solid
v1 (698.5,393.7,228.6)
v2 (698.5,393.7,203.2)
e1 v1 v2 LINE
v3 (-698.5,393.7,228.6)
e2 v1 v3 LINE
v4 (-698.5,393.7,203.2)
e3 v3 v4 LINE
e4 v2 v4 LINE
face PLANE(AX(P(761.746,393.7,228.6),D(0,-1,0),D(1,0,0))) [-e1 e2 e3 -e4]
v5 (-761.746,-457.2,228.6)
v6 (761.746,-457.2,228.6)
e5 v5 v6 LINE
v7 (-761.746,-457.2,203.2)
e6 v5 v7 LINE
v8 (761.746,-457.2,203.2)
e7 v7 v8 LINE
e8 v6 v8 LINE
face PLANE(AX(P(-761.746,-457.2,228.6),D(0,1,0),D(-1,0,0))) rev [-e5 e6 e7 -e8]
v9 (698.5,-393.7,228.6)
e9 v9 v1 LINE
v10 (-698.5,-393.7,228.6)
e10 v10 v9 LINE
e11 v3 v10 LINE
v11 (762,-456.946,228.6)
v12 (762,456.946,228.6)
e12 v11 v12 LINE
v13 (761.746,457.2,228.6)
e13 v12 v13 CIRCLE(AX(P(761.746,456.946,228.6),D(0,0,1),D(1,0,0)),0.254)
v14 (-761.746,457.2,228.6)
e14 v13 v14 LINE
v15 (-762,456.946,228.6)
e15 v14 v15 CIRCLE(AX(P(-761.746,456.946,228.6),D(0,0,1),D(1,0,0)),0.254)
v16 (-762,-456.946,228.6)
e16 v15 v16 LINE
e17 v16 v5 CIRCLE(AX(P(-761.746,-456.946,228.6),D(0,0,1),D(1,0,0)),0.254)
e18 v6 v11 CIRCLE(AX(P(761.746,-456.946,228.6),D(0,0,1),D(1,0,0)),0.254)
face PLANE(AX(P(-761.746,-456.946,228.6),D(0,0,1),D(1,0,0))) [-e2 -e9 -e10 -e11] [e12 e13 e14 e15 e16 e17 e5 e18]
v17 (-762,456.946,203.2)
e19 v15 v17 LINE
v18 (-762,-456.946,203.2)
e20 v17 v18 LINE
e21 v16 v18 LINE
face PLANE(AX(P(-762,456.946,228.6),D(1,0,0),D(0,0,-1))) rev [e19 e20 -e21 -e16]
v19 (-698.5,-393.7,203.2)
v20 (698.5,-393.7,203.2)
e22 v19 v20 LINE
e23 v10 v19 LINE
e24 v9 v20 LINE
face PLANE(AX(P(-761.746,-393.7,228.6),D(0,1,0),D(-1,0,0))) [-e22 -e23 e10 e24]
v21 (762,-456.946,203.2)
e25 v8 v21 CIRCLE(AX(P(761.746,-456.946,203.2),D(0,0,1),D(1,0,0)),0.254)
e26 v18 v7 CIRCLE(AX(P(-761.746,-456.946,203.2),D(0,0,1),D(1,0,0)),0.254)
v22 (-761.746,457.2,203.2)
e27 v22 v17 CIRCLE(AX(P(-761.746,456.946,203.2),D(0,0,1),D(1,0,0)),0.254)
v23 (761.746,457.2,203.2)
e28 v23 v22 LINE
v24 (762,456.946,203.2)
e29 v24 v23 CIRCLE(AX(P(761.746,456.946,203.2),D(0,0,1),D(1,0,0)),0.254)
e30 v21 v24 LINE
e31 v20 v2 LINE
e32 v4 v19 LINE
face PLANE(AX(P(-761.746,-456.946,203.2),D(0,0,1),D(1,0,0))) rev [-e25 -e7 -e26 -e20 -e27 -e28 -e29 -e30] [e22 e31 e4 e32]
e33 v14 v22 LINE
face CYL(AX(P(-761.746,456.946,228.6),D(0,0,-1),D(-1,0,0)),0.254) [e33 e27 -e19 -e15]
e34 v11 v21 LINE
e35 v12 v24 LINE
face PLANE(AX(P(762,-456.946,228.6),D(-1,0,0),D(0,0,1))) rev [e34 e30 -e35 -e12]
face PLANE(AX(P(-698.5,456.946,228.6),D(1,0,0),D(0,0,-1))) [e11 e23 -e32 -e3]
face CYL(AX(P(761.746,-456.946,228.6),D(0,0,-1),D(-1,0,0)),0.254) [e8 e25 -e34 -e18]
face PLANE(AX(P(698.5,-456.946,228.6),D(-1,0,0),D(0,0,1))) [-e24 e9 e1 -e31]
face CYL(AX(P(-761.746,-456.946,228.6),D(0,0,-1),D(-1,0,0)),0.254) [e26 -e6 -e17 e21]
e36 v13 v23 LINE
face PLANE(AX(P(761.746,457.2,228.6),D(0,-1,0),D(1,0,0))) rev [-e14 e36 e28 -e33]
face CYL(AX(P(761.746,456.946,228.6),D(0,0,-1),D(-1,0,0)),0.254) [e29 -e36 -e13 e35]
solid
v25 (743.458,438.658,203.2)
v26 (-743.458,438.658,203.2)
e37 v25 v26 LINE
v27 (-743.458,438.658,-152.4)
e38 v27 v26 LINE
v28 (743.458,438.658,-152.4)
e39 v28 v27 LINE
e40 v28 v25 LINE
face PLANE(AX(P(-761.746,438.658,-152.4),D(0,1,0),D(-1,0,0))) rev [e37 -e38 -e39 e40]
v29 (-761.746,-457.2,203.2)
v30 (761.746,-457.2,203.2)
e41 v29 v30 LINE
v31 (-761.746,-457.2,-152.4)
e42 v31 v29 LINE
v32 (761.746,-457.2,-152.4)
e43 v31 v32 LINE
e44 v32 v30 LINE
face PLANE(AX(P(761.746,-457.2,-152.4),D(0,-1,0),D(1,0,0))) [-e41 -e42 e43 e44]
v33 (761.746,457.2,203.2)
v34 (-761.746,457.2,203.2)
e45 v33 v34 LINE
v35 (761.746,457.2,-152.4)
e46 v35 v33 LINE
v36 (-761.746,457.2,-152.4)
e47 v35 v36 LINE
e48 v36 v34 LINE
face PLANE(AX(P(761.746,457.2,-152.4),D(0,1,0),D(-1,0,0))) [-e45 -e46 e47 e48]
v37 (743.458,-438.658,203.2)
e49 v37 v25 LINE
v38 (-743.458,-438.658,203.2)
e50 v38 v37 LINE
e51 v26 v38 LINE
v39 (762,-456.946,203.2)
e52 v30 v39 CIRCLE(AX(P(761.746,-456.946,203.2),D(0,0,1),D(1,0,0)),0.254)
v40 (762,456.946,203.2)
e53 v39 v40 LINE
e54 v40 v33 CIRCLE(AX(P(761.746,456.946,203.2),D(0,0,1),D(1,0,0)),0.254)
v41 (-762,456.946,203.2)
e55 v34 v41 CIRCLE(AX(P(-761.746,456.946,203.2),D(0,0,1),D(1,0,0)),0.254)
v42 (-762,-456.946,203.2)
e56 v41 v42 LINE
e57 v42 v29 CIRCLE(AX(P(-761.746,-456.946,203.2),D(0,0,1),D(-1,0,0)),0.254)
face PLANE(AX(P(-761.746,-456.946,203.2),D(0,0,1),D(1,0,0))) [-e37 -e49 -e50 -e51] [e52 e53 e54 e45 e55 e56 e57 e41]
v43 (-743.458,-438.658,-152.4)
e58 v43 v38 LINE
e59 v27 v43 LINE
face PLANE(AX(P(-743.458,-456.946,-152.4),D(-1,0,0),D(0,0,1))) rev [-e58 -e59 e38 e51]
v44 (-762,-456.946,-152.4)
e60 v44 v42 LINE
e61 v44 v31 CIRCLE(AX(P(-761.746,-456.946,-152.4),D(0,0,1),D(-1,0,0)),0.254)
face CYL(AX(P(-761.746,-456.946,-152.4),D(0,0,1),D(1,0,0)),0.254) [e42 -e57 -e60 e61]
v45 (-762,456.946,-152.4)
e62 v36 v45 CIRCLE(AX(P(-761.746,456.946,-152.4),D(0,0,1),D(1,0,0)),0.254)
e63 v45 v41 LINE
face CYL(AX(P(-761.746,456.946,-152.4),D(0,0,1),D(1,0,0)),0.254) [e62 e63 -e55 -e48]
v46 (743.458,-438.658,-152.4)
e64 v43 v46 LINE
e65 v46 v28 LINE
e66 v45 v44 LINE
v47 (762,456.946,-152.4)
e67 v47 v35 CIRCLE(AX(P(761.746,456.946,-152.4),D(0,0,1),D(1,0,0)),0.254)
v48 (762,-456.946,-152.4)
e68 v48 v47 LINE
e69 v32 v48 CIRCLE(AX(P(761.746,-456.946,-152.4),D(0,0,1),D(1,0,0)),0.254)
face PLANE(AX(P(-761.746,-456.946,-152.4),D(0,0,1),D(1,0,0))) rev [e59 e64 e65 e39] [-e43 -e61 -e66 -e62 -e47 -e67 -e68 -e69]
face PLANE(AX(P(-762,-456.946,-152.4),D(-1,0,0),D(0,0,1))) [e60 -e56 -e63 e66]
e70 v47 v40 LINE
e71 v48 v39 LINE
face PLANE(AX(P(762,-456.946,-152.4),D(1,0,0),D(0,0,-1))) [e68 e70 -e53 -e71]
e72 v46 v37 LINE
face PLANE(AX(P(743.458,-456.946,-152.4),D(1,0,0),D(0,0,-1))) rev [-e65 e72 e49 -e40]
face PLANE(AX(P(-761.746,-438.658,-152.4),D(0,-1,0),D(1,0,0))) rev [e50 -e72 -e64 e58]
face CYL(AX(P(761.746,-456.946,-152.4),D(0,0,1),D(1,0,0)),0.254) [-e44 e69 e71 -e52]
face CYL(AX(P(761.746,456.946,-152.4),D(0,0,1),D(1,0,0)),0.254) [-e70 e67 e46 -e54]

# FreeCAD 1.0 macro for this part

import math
import FreeCAD as App
import Part
import Sketcher
from FreeCAD import Vector
Q = App.Units.Quantity


def add_polygon(sketch, points):
    """Adds a closed chain of lines whose ends are joined by coincident constraints."""
    first, n = sketch.GeometryCount, len(points)
    for a, b in zip(points, points[1:] + points[:1]):
        sketch.addGeometry(Part.LineSegment(App.Vector(*a, 0), App.Vector(*b, 0)), False)
    for i in range(n):
        sketch.addConstraint(Sketcher.Constraint("Coincident", first + i, 2, first + (i + 1) % n, 1))

doc = App.newDocument("Part")
body = doc.addObject("PartDesign::Body", "Body")

# Sketch on XY plane
sketch1 = body.newObject("Sketcher::SketchObject", "Sketch")
sketch1.AttachmentSupport = (doc.getObject("XY_Plane"), [""])
sketch1.MapMode = "FlatFace"
sketch1.addGeometry(Part.LineSegment(Vector(761.746, 457.2, 0), Vector(-761.746, 457.2, 0)), False)  # 0
sketch1.addGeometry(Part.ArcOfCircle(Part.Circle(Vector(-761.746, 456.946, 0), Vector(0, 0, 1), 0.254), math.radians(90), math.radians(180)), False)  # 1
sketch1.addGeometry(Part.LineSegment(Vector(-762, 456.946, 0), Vector(-762, -456.946, 0)), False)  # 2
sketch1.addGeometry(Part.ArcOfCircle(Part.Circle(Vector(-761.746, -456.946, 0), Vector(0, 0, 1), 0.254), math.radians(180), math.radians(270)), False)  # 3
sketch1.addGeometry(Part.LineSegment(Vector(-761.746, -457.2, 0), Vector(761.746, -457.2, 0)), False)  # 4
sketch1.addGeometry(Part.ArcOfCircle(Part.Circle(Vector(761.746, -456.946, 0), Vector(0, 0, 1), 0.254), math.radians(-90), math.radians(0)), False)  # 5
sketch1.addGeometry(Part.LineSegment(Vector(762, -456.946, 0), Vector(762, 456.946, 0)), False)  # 6
sketch1.addGeometry(Part.ArcOfCircle(Part.Circle(Vector(761.746, 456.946, 0), Vector(0, 0, 1), 0.254), math.radians(0), math.radians(90)), False)  # 7
add_polygon(sketch1, [(-743.458, -438.658), (-743.458, 438.658), (743.458, 438.658), (743.458, -438.658)])  # lines 8-11
sketch1.addConstraint([
    Sketcher.Constraint("Tangent", 0, 2, 1, 1),
    Sketcher.Constraint("Tangent", 1, 2, 2, 1),
    Sketcher.Constraint("Tangent", 2, 2, 3, 1),
    Sketcher.Constraint("Tangent", 3, 2, 4, 1),
    Sketcher.Constraint("Tangent", 4, 2, 5, 1),
    Sketcher.Constraint("Tangent", 5, 2, 6, 1),
    Sketcher.Constraint("Tangent", 6, 2, 7, 1),
    Sketcher.Constraint("Tangent", 7, 2, 0, 1),
    Sketcher.Constraint("Horizontal", 0),
    Sketcher.Constraint("Vertical", 2),
    Sketcher.Constraint("Horizontal", 4),
    Sketcher.Constraint("Vertical", 6),
    Sketcher.Constraint("Vertical", 8),
    Sketcher.Constraint("Horizontal", 9),
    Sketcher.Constraint("Vertical", 10),
    Sketcher.Constraint("Horizontal", 11),
    Sketcher.Constraint("Equal", 1, 3),
    Sketcher.Constraint("Equal", 3, 5),
    Sketcher.Constraint("Equal", 5, 7),
    Sketcher.Constraint("Symmetric", 1, 3, 5, 3, -1, 1),
    Sketcher.Constraint("Symmetric", 8, 2, 10, 2, -1, 1),
    Sketcher.Constraint("Radius", 1, Q("0.01 in")),
    Sketcher.Constraint("DistanceY", -1, 1, 0, 2, Q("18 in")),
    Sketcher.Constraint("DistanceX", 1, 2, -1, 1, Q("30 in")),
    Sketcher.Constraint("DistanceX", 9, 1, 9, 2, Q("58.54 in")),
    Sketcher.Constraint("DistanceY", 8, 1, 8, 2, Q("34.54 in")),
])
pad1 = body.newObject("PartDesign::Pad", "Pad")
pad1.Profile = sketch1
pad1.Type = "TwoLengths"
pad1.Length = Q("8 in")
pad1.Length2 = Q("6 in")
body2 = doc.addObject("PartDesign::Body", "Body001")

# Sketch on XY plane
sketch2 = body2.newObject("Sketcher::SketchObject", "Sketch001")
sketch2.AttachmentSupport = (doc.getObject("XY_Plane001"), [""])
sketch2.MapMode = "FlatFace"
sketch2.AttachmentOffset = App.Placement(Vector(0, 0, 8 * 25.4), App.Rotation())
sketch2.addGeometry(Part.LineSegment(Vector(-762, 456.946, 0), Vector(-762, -456.946, 0)), False)  # 0
sketch2.addGeometry(Part.ArcOfCircle(Part.Circle(Vector(-761.746, -456.946, 0), Vector(0, 0, 1), 0.254), math.radians(180), math.radians(270)), False)  # 1
sketch2.addGeometry(Part.LineSegment(Vector(-761.746, -457.2, 0), Vector(761.746, -457.2, 0)), False)  # 2
sketch2.addGeometry(Part.ArcOfCircle(Part.Circle(Vector(761.746, -456.946, 0), Vector(0, 0, 1), 0.254), math.radians(-90), math.radians(0)), False)  # 3
sketch2.addGeometry(Part.LineSegment(Vector(762, -456.946, 0), Vector(762, 456.946, 0)), False)  # 4
sketch2.addGeometry(Part.ArcOfCircle(Part.Circle(Vector(761.746, 456.946, 0), Vector(0, 0, 1), 0.254), math.radians(0), math.radians(90)), False)  # 5
sketch2.addGeometry(Part.LineSegment(Vector(761.746, 457.2, 0), Vector(-761.746, 457.2, 0)), False)  # 6
sketch2.addGeometry(Part.ArcOfCircle(Part.Circle(Vector(-761.746, 456.946, 0), Vector(0, 0, 1), 0.254), math.radians(90), math.radians(180)), False)  # 7
add_polygon(sketch2, [(698.5, -393.7), (-698.5, -393.7), (-698.5, 393.7), (698.5, 393.7)])  # lines 8-11
sketch2.addConstraint([
    Sketcher.Constraint("Tangent", 0, 2, 1, 1),
    Sketcher.Constraint("Tangent", 1, 2, 2, 1),
    Sketcher.Constraint("Tangent", 2, 2, 3, 1),
    Sketcher.Constraint("Tangent", 3, 2, 4, 1),
    Sketcher.Constraint("Tangent", 4, 2, 5, 1),
    Sketcher.Constraint("Tangent", 5, 2, 6, 1),
    Sketcher.Constraint("Tangent", 6, 2, 7, 1),
    Sketcher.Constraint("Tangent", 7, 2, 0, 1),
    Sketcher.Constraint("Vertical", 0),
    Sketcher.Constraint("Horizontal", 2),
    Sketcher.Constraint("Vertical", 4),
    Sketcher.Constraint("Horizontal", 6),
    Sketcher.Constraint("Horizontal", 8),
    Sketcher.Constraint("Vertical", 9),
    Sketcher.Constraint("Horizontal", 10),
    Sketcher.Constraint("Vertical", 11),
    Sketcher.Constraint("Equal", 1, 3),
    Sketcher.Constraint("Equal", 3, 5),
    Sketcher.Constraint("Equal", 5, 7),
    Sketcher.Constraint("Symmetric", 1, 3, 5, 3, -1, 1),
    Sketcher.Constraint("Symmetric", 8, 2, 10, 2, -1, 1),
    Sketcher.Constraint("DistanceX", 8, 2, 8, 1, Q("55 in")),
    Sketcher.Constraint("DistanceY", 9, 1, 9, 2, Q("31 in")),
    Sketcher.Constraint("Radius", 1, Q("0.01 in")),
    Sketcher.Constraint("DistanceX", 0, 2, -1, 1, Q("30 in")),
    Sketcher.Constraint("DistanceY", 1, 2, -1, 1, Q("18 in")),
])
pad2 = body2.newObject("PartDesign::Pad", "Pad001")
pad2.Profile = sketch2
pad2.Length = Q("1 in")

doc.recompute()
